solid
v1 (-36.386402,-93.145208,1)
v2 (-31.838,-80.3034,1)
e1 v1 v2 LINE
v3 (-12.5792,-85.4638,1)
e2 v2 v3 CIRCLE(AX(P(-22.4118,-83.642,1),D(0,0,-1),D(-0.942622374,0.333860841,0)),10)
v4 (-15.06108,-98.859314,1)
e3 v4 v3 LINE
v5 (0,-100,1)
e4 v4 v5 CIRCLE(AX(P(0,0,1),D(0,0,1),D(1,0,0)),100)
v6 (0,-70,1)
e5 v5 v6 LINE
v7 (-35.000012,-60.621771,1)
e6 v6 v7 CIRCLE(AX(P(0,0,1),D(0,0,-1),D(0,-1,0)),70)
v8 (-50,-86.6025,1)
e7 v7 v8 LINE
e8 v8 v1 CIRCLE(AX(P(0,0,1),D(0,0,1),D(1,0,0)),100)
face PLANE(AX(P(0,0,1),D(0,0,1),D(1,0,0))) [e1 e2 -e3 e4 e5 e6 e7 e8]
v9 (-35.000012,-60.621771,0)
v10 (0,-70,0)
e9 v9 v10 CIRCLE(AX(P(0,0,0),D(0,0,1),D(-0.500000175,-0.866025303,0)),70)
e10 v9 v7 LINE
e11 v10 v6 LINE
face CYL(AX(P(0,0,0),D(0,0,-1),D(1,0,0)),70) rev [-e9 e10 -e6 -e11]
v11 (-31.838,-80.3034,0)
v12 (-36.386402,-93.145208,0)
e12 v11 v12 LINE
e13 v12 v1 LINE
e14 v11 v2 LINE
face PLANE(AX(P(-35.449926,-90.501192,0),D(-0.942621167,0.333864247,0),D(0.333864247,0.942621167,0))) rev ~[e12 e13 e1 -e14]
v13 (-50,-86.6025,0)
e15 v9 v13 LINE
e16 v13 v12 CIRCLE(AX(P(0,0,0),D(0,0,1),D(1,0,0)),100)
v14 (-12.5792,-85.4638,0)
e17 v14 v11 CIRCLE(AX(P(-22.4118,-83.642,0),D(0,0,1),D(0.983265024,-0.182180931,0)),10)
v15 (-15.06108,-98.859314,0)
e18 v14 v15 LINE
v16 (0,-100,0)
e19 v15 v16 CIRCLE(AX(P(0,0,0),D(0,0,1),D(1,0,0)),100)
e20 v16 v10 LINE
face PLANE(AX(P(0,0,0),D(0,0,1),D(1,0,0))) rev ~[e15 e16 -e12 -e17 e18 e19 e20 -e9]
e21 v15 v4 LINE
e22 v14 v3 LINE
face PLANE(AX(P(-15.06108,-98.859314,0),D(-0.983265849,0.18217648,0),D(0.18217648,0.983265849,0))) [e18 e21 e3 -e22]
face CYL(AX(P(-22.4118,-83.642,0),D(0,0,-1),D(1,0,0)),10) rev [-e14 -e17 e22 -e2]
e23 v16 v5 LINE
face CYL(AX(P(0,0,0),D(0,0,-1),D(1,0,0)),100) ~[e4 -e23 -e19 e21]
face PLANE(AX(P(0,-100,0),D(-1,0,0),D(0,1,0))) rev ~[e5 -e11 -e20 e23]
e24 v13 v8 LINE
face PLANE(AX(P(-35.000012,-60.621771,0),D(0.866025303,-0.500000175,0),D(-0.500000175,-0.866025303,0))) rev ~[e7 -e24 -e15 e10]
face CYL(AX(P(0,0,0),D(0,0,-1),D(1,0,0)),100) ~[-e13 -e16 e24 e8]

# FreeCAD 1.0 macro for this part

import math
import FreeCAD as App
import Part
import Sketcher
from FreeCAD import Vector
Q = App.Units.Quantity

doc = App.newDocument("Part")
body = doc.addObject("PartDesign::Body", "Body")

sketch1 = body.newObject("Sketcher::SketchObject", "Sketch")
sketch1.AttachmentSupport = (doc.getObject("XY_Plane"), [""])
sketch1.MapMode = "FlatFace"
sketch1.addGeometry(Part.ArcOfCircle(Part.Circle(Vector(0, 0, 0), Vector(0, 0, 1), 100), math.radians(-98.66), math.radians(-90)), False)
sketch1.addGeometry(Part.LineSegment(Vector(0, -100, 0), Vector(0, -70, 0)), False)
sketch1.addGeometry(Part.ArcOfCircle(Part.Circle(Vector(0, 0, 0), Vector(0, 0, 1), 70), math.radians(-120), math.radians(-90)), False)
sketch1.addGeometry(Part.LineSegment(Vector(-35, -61, 0), Vector(-50, -87, 0)), False)
sketch1.addGeometry(Part.ArcOfCircle(Part.Circle(Vector(0, 0, 0), Vector(0, 0, 1), 100), math.radians(-120), math.radians(-111.34)), False)
sketch1.addGeometry(Part.LineSegment(Vector(-36, -93, 0), Vector(-32, -80, 0)), False)
sketch1.addGeometry(Part.ArcOfCircle(Part.Circle(Vector(-22, -84, 0), Vector(0, 0, 1), 10), math.radians(-10), math.radians(160)), False)
sketch1.addGeometry(Part.LineSegment(Vector(-13, -85, 0), Vector(-15, -99, 0)), False)
sketch1.addConstraint(Sketcher.Constraint("Coincident", 0, 2, 1, 1))
sketch1.addConstraint(Sketcher.Constraint("Coincident", 1, 2, 2, 2))
sketch1.addConstraint(Sketcher.Constraint("Coincident", 2, 1, 3, 1))
sketch1.addConstraint(Sketcher.Constraint("Coincident", 3, 2, 4, 1))
sketch1.addConstraint(Sketcher.Constraint("Coincident", 4, 2, 5, 1))
sketch1.addConstraint(Sketcher.Constraint("Tangent", 5, 2, 6, 2))
sketch1.addConstraint(Sketcher.Constraint("Tangent", 6, 1, 7, 1))
sketch1.addConstraint(Sketcher.Constraint("Coincident", 7, 2, 0, 1))
sketch1.addConstraint(Sketcher.Constraint("Vertical", 1))
sketch1.addConstraint(Sketcher.Constraint("Coincident", 0, 3, -1, 1))
sketch1.addConstraint(Sketcher.Constraint("Coincident", 2, 3, -1, 1))
sketch1.addConstraint(Sketcher.Constraint("Coincident", 4, 3, -1, 1))
sketch1.addConstraint(Sketcher.Constraint("Equal", 0, 4))
sketch1.addConstraint(Sketcher.Constraint("PointOnObject", 0, 2, -2))
sketch1.addConstraint(Sketcher.Constraint("Equal", 5, 7))
sketch1.addConstraint(Sketcher.Constraint("Radius", 0, 100.0))
sketch1.addConstraint(Sketcher.Constraint("Radius", 2, 70.0))
sketch1.addConstraint(Sketcher.Constraint("Radius", 6, 10.0))
sketch1.addConstraint(Sketcher.Constraint("Angle", 3, Q("-120 deg")))
sketch1.addConstraint(Sketcher.Constraint("DistanceX", 2, 1, -1, 1, 35.0))
sketch1.addConstraint(Sketcher.Constraint("DistanceY", 6, 3, -1, 1, 83.642))
sketch1.addConstraint(Sketcher.Constraint("DistanceX", 5, 2, -1, 1, 31.838))
sketch1.addConstraint(Sketcher.Constraint("DistanceX", 7, 2, -1, 1, 15.061))
pad1 = body.newObject("PartDesign::Pad", "Pad")
pad1.Profile = sketch1
pad1.Length = 1

doc.recompute()
